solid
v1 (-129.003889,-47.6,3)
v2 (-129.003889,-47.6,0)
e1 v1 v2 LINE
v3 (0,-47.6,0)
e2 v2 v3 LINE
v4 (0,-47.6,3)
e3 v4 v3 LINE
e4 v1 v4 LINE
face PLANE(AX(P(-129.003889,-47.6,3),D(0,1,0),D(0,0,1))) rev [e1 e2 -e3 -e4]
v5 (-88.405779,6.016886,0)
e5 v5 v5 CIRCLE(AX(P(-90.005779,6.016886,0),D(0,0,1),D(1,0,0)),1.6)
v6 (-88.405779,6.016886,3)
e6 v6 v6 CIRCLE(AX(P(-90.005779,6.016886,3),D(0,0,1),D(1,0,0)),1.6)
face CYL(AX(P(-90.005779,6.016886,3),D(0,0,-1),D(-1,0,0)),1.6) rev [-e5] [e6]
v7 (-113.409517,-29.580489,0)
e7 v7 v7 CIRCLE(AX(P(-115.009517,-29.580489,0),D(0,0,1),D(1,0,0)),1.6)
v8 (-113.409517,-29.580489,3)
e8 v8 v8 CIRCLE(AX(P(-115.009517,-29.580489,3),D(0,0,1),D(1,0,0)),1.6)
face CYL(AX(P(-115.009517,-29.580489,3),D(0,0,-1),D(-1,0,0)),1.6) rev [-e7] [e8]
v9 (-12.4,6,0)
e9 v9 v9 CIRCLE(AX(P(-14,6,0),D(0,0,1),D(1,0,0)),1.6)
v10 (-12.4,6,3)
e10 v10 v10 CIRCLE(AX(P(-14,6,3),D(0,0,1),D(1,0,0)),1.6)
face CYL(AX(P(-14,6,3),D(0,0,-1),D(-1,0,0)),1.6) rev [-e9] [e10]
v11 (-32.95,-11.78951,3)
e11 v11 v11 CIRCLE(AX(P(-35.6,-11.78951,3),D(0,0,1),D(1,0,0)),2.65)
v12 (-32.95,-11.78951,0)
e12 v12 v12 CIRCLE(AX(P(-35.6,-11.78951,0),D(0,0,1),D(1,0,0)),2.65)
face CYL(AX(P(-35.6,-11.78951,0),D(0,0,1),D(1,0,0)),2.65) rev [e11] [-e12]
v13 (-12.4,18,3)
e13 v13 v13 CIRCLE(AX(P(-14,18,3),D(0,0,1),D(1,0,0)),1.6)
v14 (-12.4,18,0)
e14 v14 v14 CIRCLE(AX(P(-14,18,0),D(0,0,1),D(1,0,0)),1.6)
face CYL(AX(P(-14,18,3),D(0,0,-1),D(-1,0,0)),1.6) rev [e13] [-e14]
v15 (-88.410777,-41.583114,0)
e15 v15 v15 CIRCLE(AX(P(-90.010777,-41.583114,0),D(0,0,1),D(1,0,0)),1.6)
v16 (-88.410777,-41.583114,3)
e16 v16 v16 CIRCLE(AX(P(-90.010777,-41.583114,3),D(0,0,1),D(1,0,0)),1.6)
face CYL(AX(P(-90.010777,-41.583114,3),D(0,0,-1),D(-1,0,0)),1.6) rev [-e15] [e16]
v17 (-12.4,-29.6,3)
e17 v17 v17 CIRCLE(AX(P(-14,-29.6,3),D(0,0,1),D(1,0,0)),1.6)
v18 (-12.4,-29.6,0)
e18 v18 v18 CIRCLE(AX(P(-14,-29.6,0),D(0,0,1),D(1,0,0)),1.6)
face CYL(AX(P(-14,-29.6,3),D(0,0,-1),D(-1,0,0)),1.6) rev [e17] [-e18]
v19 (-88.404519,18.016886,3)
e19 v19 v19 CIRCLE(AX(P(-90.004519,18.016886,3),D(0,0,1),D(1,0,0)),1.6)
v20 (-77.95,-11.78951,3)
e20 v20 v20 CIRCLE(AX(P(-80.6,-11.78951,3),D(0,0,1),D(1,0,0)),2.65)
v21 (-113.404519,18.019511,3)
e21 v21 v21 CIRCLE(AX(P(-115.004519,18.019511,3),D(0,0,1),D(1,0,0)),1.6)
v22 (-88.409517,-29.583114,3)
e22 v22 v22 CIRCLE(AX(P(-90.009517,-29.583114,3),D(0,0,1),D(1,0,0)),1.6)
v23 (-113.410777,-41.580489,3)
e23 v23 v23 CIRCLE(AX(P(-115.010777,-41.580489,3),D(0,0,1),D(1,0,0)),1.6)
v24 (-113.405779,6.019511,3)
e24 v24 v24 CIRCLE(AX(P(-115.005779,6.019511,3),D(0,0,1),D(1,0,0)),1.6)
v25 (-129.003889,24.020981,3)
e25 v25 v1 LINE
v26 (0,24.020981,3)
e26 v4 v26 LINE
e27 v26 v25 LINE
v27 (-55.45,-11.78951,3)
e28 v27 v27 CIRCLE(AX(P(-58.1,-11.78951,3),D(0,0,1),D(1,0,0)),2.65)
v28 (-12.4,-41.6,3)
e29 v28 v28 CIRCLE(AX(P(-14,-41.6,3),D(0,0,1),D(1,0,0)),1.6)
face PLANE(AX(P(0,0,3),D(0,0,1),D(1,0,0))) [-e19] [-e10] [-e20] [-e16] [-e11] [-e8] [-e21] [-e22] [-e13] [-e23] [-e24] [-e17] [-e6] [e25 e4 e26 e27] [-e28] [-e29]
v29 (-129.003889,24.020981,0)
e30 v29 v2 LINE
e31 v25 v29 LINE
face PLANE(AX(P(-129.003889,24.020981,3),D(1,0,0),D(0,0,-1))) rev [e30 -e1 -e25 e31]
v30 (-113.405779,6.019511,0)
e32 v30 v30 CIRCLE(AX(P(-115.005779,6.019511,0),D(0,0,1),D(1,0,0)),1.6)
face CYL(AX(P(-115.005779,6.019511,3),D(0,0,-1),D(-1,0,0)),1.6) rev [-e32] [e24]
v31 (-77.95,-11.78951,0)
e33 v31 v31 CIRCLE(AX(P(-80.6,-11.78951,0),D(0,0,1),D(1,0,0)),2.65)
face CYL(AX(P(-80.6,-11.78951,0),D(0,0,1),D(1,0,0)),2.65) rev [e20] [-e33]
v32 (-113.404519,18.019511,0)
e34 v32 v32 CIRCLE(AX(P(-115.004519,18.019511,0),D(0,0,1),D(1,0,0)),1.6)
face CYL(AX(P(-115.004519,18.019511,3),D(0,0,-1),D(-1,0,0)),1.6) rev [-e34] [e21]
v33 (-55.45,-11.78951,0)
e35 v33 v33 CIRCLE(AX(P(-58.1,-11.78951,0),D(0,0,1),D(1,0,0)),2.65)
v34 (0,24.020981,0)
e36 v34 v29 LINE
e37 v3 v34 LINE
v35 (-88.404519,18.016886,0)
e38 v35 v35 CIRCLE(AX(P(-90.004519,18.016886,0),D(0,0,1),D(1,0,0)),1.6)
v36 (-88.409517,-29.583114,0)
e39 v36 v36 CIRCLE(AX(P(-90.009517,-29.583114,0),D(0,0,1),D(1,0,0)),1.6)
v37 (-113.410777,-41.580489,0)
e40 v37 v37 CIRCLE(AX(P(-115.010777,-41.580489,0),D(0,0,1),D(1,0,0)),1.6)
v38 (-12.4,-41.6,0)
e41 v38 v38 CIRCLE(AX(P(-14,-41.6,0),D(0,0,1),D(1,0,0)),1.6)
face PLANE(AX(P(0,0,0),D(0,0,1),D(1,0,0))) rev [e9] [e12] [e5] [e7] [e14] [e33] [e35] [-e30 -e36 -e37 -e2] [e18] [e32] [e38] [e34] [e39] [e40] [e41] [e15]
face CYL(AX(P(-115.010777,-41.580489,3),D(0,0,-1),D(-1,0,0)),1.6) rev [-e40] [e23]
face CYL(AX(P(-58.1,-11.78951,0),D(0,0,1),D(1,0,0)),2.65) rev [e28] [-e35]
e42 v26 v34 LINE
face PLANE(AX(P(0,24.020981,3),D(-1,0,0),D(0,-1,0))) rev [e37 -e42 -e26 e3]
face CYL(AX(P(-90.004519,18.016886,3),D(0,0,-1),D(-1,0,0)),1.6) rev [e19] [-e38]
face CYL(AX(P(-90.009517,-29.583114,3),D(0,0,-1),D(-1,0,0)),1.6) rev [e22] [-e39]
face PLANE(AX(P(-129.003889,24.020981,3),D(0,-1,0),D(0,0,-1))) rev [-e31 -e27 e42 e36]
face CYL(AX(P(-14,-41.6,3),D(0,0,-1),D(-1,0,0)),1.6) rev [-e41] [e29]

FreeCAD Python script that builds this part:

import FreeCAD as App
import Part
import Sketcher
from FreeCAD import Vector
Q = App.Units.Quantity


def add_polygon(sketch, points):
    """Adds a closed chain of lines whose ends are joined by coincident constraints."""
    first, n = sketch.GeometryCount, len(points)
    for a, b in zip(points, points[1:] + points[:1]):
        sketch.addGeometry(Part.LineSegment(App.Vector(*a, 0), App.Vector(*b, 0)), False)
    for i in range(n):
        sketch.addConstraint(Sketcher.Constraint("Coincident", first + i, 2, first + (i + 1) % n, 1))

doc = App.newDocument("Part")
body = doc.addObject("PartDesign::Body", "Body")

sketch1 = body.newObject("Sketcher::SketchObject", "Sketch")
sketch1.AttachmentSupport = (doc.getObject("XY_Plane"), [""])
sketch1.MapMode = "FlatFace"
add_polygon(sketch1, [(-129, 24), (-129, -47.6), (0, -47.6), (0, 24)])
sketch1.addGeometry(Part.Circle(Vector(-115, -41.6, 0), Vector(0, 0, 1), 1.6), False)
sketch1.addGeometry(Part.Circle(Vector(-115, -29.6, 0), Vector(0, 0, 1), 1.6), False)
sketch1.addGeometry(Part.Circle(Vector(-90, -41.6, 0), Vector(0, 0, 1), 1.6), False)
sketch1.addGeometry(Part.Circle(Vector(-90, -29.6, 0), Vector(0, 0, 1), 1.6), False)
sketch1.addGeometry(Part.Circle(Vector(-14, -41.6, 0), Vector(0, 0, 1), 1.6), False)
sketch1.addGeometry(Part.Circle(Vector(-14, -29.6, 0), Vector(0, 0, 1), 1.6), False)
sketch1.addGeometry(Part.Circle(Vector(-115, 6, 0), Vector(0, 0, 1), 1.6), False)
sketch1.addGeometry(Part.Circle(Vector(-115, 18, 0), Vector(0, 0, 1), 1.6), False)
sketch1.addGeometry(Part.Circle(Vector(-90, 6, 0), Vector(0, 0, 1), 1.6), False)
sketch1.addGeometry(Part.Circle(Vector(-90, 18, 0), Vector(0, 0, 1), 1.6), False)
sketch1.addGeometry(Part.Circle(Vector(-14, 6, 0), Vector(0, 0, 1), 1.6), False)
sketch1.addGeometry(Part.Circle(Vector(-14, 18, 0), Vector(0, 0, 1), 1.6), False)
sketch1.addConstraint([
    Sketcher.Constraint("Vertical", 0),
    Sketcher.Constraint("Horizontal", 1),
    Sketcher.Constraint("Vertical", 2),
    Sketcher.Constraint("Horizontal", 3),
    Sketcher.Constraint("Equal", 4, 5),
    Sketcher.Constraint("Equal", 5, 6),
    Sketcher.Constraint("Equal", 6, 7),
    Sketcher.Constraint("Equal", 7, 8),
    Sketcher.Constraint("Equal", 8, 9),
    Sketcher.Constraint("Equal", 9, 10),
    Sketcher.Constraint("Equal", 10, 11),
    Sketcher.Constraint("Equal", 11, 12),
    Sketcher.Constraint("Equal", 12, 13),
    Sketcher.Constraint("Equal", 13, 14),
    Sketcher.Constraint("Equal", 14, 15),
    Sketcher.Constraint("PointOnObject", 1, 2, -2),
    Sketcher.Constraint("Vertical", 8, 3, 9, 3),
    Sketcher.Constraint("Vertical", 9, 3, 14, 3),
    Sketcher.Constraint("Vertical", 14, 3, 15, 3),
    Sketcher.Constraint("Diameter", 4, Q("3.2 mm")),
    Sketcher.Constraint("DistanceX", 8, 3, -1, 1, Q("14 mm")),
    Sketcher.Constraint("DistanceY", -1, 1, 14, 3, Q("6 mm")),
    Sketcher.Constraint("DistanceY", -1, 1, 15, 3, Q("18 mm")),
    Sketcher.Constraint("DistanceY", 4, 3, 5, 3, Q("12 mm")),
    Sketcher.Constraint("DistanceX", 4, 3, 6, 3, Q("25 mm")),
    Sketcher.Constraint("DistanceY", 6, 3, 7, 3, Q("12 mm")),
    Sketcher.Constraint("DistanceX", 5, 3, 7, 3, Q("25 mm")),
    Sketcher.Constraint("DistanceY", 8, 3, 9, 3, Q("12 mm")),
    Sketcher.Constraint("DistanceY", 10, 3, 11, 3, Q("12 mm")),
    Sketcher.Constraint("DistanceX", 10, 3, 12, 3, Q("25 mm")),
    Sketcher.Constraint("DistanceY", 12, 3, 13, 3, Q("12 mm")),
    Sketcher.Constraint("DistanceX", 11, 3, 13, 3, Q("25 mm")),
    Sketcher.Constraint("DistanceY", 1, 2, 8, 3, Q("6 mm")),
    Sketcher.Constraint("DistanceY", 8, 3, -1, 1, Q("41.6 mm")),
    Sketcher.Constraint("DistanceY", 5, 3, 10, 3, Q("35.6 mm")),
    Sketcher.Constraint("DistanceY", 7, 3, 12, 3, Q("35.6 mm")),
    Sketcher.Constraint("DistanceX", 4, 3, 10, 3, Q("0.004998 mm")),
    Sketcher.Constraint("DistanceX", 5, 3, 11, 3, Q("0.004998 mm")),
    Sketcher.Constraint("DistanceX", 1, 1, 1, 2, Q("129.003889 mm")),
    Sketcher.Constraint("DistanceY", 0, 2, 0, 1, Q("71.620981 mm")),
    Sketcher.Constraint("DistanceY", 4, 3, -1, 1, Q("41.580489 mm")),
    Sketcher.Constraint("DistanceX", 10, 3, -1, 1, Q("115.005779 mm")),
    Sketcher.Constraint("DistanceX", 11, 3, -1, 1, Q("115.004519 mm")),
    Sketcher.Constraint("DistanceY", 6, 3, -1, 1, Q("41.583114 mm")),
])
pad1 = body.newObject("PartDesign::Pad", "Pad")
pad1.Profile = sketch1
pad1.Length = 3

sketch2 = body.newObject("Sketcher::SketchObject", "Sketch001")
sketch2.AttachmentSupport = (doc.getObject("XY_Plane"), [""])
sketch2.MapMode = "FlatFace"
sketch2.AttachmentOffset = App.Placement(Vector(0, 0, 3), App.Rotation())
sketch2.addGeometry(Part.Circle(Vector(-58.1, -11.8, 0), Vector(0, 0, 1), 2.6), False)
sketch2.addConstraint([
    Sketcher.Constraint("Diameter", 0, Q("5.3 mm")),
    Sketcher.Constraint("DistanceX", 0, 3, -1, 1, Q("58.1 mm")),
    Sketcher.Constraint("DistanceY", 0, 3, -1, 1, Q("11.78951 mm")),
])
pocket1 = body.newObject("PartDesign::Pocket", "Pocket")
pocket1.Profile = sketch2
pocket1.Length = 3

sketch3 = body.newObject("Sketcher::SketchObject", "Sketch002")
sketch3.AttachmentSupport = (doc.getObject("XY_Plane"), [""])
sketch3.MapMode = "FlatFace"
sketch3.AttachmentOffset = App.Placement(Vector(0, 0, 3), App.Rotation())
sketch3.addGeometry([
    Part.Circle(Vector(-80.6, -11.8, 0), Vector(0, 0, 1), 2.6),
    Part.Circle(Vector(-35.6, -11.8, 0), Vector(0, 0, 1), 2.6),
], False)
sketch3.addConstraint([
    Sketcher.Constraint("Equal", 0, 1),
    Sketcher.Constraint("Horizontal", 0, 3, 1, 3),
    Sketcher.Constraint("Diameter", 0, Q("5.3 mm")),
    Sketcher.Constraint("DistanceX", 0, 3, 1, 3, Q("45 mm")),
    Sketcher.Constraint("DistanceX", 0, 3, -1, 1, Q("80.6 mm")),
    Sketcher.Constraint("DistanceY", 0, 3, -1, 1, Q("11.78951 mm")),
])
pocket2 = body.newObject("PartDesign::Pocket", "Pocket001")
pocket2.Profile = sketch3
pocket2.Length = 3

doc.recompute()
